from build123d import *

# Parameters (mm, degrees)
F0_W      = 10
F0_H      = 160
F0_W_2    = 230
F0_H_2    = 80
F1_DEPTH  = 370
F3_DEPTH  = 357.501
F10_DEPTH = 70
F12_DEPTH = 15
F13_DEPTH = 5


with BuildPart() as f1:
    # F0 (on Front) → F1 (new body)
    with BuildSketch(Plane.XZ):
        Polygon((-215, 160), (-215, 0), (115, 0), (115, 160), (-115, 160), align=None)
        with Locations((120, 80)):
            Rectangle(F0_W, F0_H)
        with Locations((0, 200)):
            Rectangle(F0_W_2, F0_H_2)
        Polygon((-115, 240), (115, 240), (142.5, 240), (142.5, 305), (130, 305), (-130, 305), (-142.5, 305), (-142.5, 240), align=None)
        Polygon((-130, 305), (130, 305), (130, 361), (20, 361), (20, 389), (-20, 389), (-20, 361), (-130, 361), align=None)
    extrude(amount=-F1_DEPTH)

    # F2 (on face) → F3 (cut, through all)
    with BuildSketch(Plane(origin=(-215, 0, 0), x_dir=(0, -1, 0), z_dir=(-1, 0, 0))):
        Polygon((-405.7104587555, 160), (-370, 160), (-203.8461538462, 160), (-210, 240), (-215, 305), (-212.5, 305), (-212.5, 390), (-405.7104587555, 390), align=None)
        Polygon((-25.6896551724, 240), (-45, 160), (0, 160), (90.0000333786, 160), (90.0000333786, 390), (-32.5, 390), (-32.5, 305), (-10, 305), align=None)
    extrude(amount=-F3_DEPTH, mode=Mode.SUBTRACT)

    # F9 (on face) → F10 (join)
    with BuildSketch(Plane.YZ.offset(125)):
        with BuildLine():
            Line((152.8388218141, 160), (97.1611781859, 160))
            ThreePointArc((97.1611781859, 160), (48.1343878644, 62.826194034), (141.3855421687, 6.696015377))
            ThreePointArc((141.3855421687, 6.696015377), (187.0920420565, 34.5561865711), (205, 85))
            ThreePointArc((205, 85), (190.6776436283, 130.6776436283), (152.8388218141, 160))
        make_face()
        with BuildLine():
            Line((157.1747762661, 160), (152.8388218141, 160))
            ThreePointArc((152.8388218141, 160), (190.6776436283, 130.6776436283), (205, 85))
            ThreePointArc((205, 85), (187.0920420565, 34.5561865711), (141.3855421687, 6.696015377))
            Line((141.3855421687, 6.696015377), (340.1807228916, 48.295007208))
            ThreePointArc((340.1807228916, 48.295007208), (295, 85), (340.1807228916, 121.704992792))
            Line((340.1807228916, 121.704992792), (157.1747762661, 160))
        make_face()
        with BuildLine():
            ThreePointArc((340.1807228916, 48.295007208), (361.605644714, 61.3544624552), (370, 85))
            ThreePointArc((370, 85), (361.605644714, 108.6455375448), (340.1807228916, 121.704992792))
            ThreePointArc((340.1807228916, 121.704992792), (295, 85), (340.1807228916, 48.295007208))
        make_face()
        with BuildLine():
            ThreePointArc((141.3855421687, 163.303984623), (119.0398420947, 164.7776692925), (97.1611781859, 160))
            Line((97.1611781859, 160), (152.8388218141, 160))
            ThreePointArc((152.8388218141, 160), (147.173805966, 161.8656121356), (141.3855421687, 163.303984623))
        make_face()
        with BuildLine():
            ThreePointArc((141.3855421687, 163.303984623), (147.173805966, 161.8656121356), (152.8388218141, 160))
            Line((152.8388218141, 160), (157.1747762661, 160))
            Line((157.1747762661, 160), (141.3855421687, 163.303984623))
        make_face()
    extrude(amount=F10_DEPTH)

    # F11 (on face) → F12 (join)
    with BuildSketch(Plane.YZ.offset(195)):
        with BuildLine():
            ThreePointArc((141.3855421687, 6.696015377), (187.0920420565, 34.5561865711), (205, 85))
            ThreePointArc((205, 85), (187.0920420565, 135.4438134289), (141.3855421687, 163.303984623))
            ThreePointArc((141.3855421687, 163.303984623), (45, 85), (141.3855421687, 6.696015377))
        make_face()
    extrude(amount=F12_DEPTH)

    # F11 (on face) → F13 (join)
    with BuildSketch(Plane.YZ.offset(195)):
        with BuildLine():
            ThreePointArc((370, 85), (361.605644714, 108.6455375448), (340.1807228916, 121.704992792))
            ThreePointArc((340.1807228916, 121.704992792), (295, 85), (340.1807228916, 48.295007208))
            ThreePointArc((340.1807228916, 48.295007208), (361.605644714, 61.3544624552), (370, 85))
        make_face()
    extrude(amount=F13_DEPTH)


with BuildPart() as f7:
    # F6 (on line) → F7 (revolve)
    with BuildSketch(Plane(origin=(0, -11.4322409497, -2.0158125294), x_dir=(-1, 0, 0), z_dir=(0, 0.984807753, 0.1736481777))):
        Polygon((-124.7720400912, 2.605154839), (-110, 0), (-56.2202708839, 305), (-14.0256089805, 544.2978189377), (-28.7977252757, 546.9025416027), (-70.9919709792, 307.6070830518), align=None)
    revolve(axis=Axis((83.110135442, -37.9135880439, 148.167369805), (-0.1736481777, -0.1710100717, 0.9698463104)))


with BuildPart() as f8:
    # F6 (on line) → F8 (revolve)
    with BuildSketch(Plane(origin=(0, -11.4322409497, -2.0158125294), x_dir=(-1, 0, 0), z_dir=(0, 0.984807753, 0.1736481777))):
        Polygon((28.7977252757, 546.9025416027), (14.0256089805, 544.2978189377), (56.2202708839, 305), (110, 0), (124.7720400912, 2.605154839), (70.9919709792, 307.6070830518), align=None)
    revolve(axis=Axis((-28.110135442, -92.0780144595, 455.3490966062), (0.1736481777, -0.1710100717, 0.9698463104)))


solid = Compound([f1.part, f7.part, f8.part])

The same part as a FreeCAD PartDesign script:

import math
import FreeCAD as App
import Part
import Sketcher

V = App.Vector
Q = App.Units.Quantity

doc = App.newDocument("Part")
body = doc.addObject("PartDesign::Body", "Body")

# Sketch on XZ plane
sketch1 = body.newObject("Sketcher::SketchObject", "Sketch")
sketch1.AttachmentSupport = (doc.getObject("XZ_Plane"), [""])
sketch1.MapMode = "FlatFace"
sketch1.addGeometry([
    Part.LineSegment(V(-215, 160, 0), V(-215, 0, 0)),  # 0
    Part.LineSegment(V(-215, 0, 0), V(125, 0, 0)),  # 1
    Part.LineSegment(V(125, 0, 0), V(125, 160, 0)),  # 2
    Part.LineSegment(V(125, 160, 0), V(115, 160, 0)),  # 3
    Part.LineSegment(V(115, 160, 0), V(115, 240, 0)),  # 4
    Part.LineSegment(V(115, 240, 0), V(142.5, 240, 0)),  # 5
    Part.LineSegment(V(142.5, 240, 0), V(142.5, 305, 0)),  # 6
    Part.LineSegment(V(142.5, 305, 0), V(130, 305, 0)),  # 7
    Part.LineSegment(V(130, 305, 0), V(130, 361, 0)),  # 8
    Part.LineSegment(V(130, 361, 0), V(20, 361, 0)),  # 9
    Part.LineSegment(V(20, 361, 0), V(20, 389, 0)),  # 10
    Part.LineSegment(V(20, 389, 0), V(-20, 389, 0)),  # 11
    Part.LineSegment(V(-20, 389, 0), V(-20, 361, 0)),  # 12
    Part.LineSegment(V(-20, 361, 0), V(-130, 361, 0)),  # 13
    Part.LineSegment(V(-130, 361, 0), V(-130, 305, 0)),  # 14
    Part.LineSegment(V(-130, 305, 0), V(-142.5, 305, 0)),  # 15
    Part.LineSegment(V(-142.5, 305, 0), V(-142.5, 240, 0)),  # 16
    Part.LineSegment(V(-142.5, 240, 0), V(-115, 240, 0)),  # 17
    Part.LineSegment(V(-115, 240, 0), V(-115, 160, 0)),  # 18
    Part.LineSegment(V(-115, 160, 0), V(-215, 160, 0)),  # 19
], False)
sketch1.addConstraint([
    Sketcher.Constraint("Coincident", 0, 2, 1, 1),
    Sketcher.Constraint("Coincident", 1, 2, 2, 1),
    Sketcher.Constraint("Coincident", 2, 2, 3, 1),
    Sketcher.Constraint("Coincident", 3, 2, 4, 1),
    Sketcher.Constraint("Coincident", 4, 2, 5, 1),
    Sketcher.Constraint("Coincident", 5, 2, 6, 1),
    Sketcher.Constraint("Coincident", 6, 2, 7, 1),
    Sketcher.Constraint("Coincident", 7, 2, 8, 1),
    Sketcher.Constraint("Coincident", 8, 2, 9, 1),
    Sketcher.Constraint("Coincident", 9, 2, 10, 1),
    Sketcher.Constraint("Coincident", 10, 2, 11, 1),
    Sketcher.Constraint("Coincident", 11, 2, 12, 1),
    Sketcher.Constraint("Coincident", 12, 2, 13, 1),
    Sketcher.Constraint("Coincident", 13, 2, 14, 1),
    Sketcher.Constraint("Coincident", 14, 2, 15, 1),
    Sketcher.Constraint("Coincident", 15, 2, 16, 1),
    Sketcher.Constraint("Coincident", 16, 2, 17, 1),
    Sketcher.Constraint("Coincident", 17, 2, 18, 1),
    Sketcher.Constraint("Coincident", 18, 2, 19, 1),
    Sketcher.Constraint("Coincident", 19, 2, 0, 1),
    Sketcher.Constraint("Vertical", 0),
    Sketcher.Constraint("Horizontal", 1),
    Sketcher.Constraint("Vertical", 2),
    Sketcher.Constraint("Horizontal", 3),
    Sketcher.Constraint("Vertical", 4),
    Sketcher.Constraint("Horizontal", 5),
    Sketcher.Constraint("Vertical", 6),
    Sketcher.Constraint("Horizontal", 7),
    Sketcher.Constraint("Vertical", 8),
    Sketcher.Constraint("Horizontal", 9),
    Sketcher.Constraint("Vertical", 10),
    Sketcher.Constraint("Horizontal", 11),
    Sketcher.Constraint("Vertical", 12),
    Sketcher.Constraint("Horizontal", 13),
    Sketcher.Constraint("Vertical", 14),
    Sketcher.Constraint("Horizontal", 15),
    Sketcher.Constraint("Vertical", 16),
    Sketcher.Constraint("Horizontal", 17),
    Sketcher.Constraint("Vertical", 18),
    Sketcher.Constraint("Horizontal", 19),
    Sketcher.Constraint("Symmetric", 9, 2, 12, 2, -2),
    Sketcher.Constraint("Symmetric", 7, 2, 14, 2, -2),
    Sketcher.Constraint("Symmetric", 5, 2, 16, 2, -2),
    Sketcher.Constraint("Symmetric", 3, 2, 18, 2, -2),
    Sketcher.Constraint("PointOnObject", 0, 2, -1),
    Sketcher.Constraint("DistanceX", 1, 1, 1, 2, Q("340 mm")),
    Sketcher.Constraint("DistanceX", 3, 2, 3, 1, Q("10 mm")),
    Sketcher.Constraint("DistanceX", 9, 2, 9, 1, Q("110 mm")),
    Sketcher.Constraint("DistanceX", 11, 2, 11, 1, Q("40 mm")),
    Sketcher.Constraint("DistanceX", 19, 2, 19, 1, Q("100 mm")),
    Sketcher.Constraint("DistanceY", 0, 2, 0, 1, Q("160 mm")),
    Sketcher.Constraint("DistanceY", 4, 1, 4, 2, Q("80 mm")),
    Sketcher.Constraint("DistanceY", 6, 1, 6, 2, Q("65 mm")),
    Sketcher.Constraint("DistanceY", 8, 1, 8, 2, Q("56 mm")),
    Sketcher.Constraint("DistanceY", 10, 1, 10, 2, Q("28 mm")),
    Sketcher.Constraint("DistanceX", 5, 1, 5, 2, Q("27.5 mm")),
])
pad1 = body.newObject("PartDesign::Pad", "Pad")
pad1.Profile = sketch1
pad1.Length = 370
pad1.Reversed = True

# Sketch on YZ plane
sketch2 = body.newObject("Sketcher::SketchObject", "Sketch001")
sketch2.AttachmentSupport = (doc.getObject("YZ_Plane"), [""])
sketch2.MapMode = "FlatFace"
sketch2.AttachmentOffset = App.Placement(V(0, 0, -215), App.Rotation())
sketch2.addGeometry([
    Part.LineSegment(V(405.710459, 160, 0), V(203.846154, 160, 0)),  # 0
    Part.LineSegment(V(203.846154, 160, 0), V(215, 305, 0)),  # 1
    Part.LineSegment(V(215, 305, 0), V(212.5, 305, 0)),  # 2
    Part.LineSegment(V(212.5, 305, 0), V(212.5, 390, 0)),  # 3
    Part.LineSegment(V(212.5, 390, 0), V(405.710459, 390, 0)),  # 4
    Part.LineSegment(V(405.710459, 390, 0), V(405.710459, 160, 0)),  # 5
    Part.LineSegment(V(45, 160, 0), V(-90.000033, 160, 0)),  # 6
    Part.LineSegment(V(-90.000033, 160, 0), V(-90.000033, 390, 0)),  # 7
    Part.LineSegment(V(-90.000033, 390, 0), V(32.5, 390, 0)),  # 8
    Part.LineSegment(V(32.5, 390, 0), V(32.5, 305, 0)),  # 9
    Part.LineSegment(V(32.5, 305, 0), V(10, 305, 0)),  # 10
    Part.LineSegment(V(10, 305, 0), V(45, 160, 0)),  # 11
], False)
sketch2.addConstraint([
    Sketcher.Constraint("Coincident", 0, 2, 1, 1),
    Sketcher.Constraint("Coincident", 1, 2, 2, 1),
    Sketcher.Constraint("Coincident", 2, 2, 3, 1),
    Sketcher.Constraint("Coincident", 3, 2, 4, 1),
    Sketcher.Constraint("Coincident", 4, 2, 5, 1),
    Sketcher.Constraint("Coincident", 5, 2, 0, 1),
    Sketcher.Constraint("Coincident", 6, 2, 7, 1),
    Sketcher.Constraint("Coincident", 7, 2, 8, 1),
    Sketcher.Constraint("Coincident", 8, 2, 9, 1),
    Sketcher.Constraint("Coincident", 9, 2, 10, 1),
    Sketcher.Constraint("Coincident", 10, 2, 11, 1),
    Sketcher.Constraint("Coincident", 11, 2, 6, 1),
    Sketcher.Constraint("Horizontal", 0),
    Sketcher.Constraint("Horizontal", 2),
    Sketcher.Constraint("Vertical", 3),
    Sketcher.Constraint("Horizontal", 4),
    Sketcher.Constraint("Vertical", 5),
    Sketcher.Constraint("Horizontal", 6),
    Sketcher.Constraint("Vertical", 7),
    Sketcher.Constraint("Horizontal", 8),
    Sketcher.Constraint("Vertical", 9),
    Sketcher.Constraint("Horizontal", 10),
    Sketcher.Constraint("Horizontal", 5, 2, 6, 2),
    Sketcher.Constraint("Horizontal", 4, 2, 7, 2),
    Sketcher.Constraint("Horizontal", 2, 2, 9, 2),
    Sketcher.Constraint("DistanceY", 3, 1, 3, 2, Q("85 mm")),
    Sketcher.Constraint("DistanceY", 5, 2, 5, 1, Q("230 mm")),
    Sketcher.Constraint("DistanceX", 2, 2, 2, 1, Q("2.5 mm")),
    Sketcher.Constraint("DistanceX", 10, 2, 10, 1, Q("22.5 mm")),
    Sketcher.Constraint("DistanceY", -1, 1, 0, 2, Q("160 mm")),
    Sketcher.Constraint("DistanceX", -1, 1, 1, 2, Q("215 mm")),
    Sketcher.Constraint("DistanceX", -1, 1, 10, 2, Q("10 mm")),
    Sketcher.Constraint("DistanceX", -1, 1, 11, 2, Q("45 mm")),
    Sketcher.Constraint("DistanceX", 4, 1, 4, 2, Q("193.210459 mm")),
    Sketcher.Constraint("Distance", 1, Q("145.428361 mm")),
    Sketcher.Constraint("DistanceX", 6, 2, 6, 1, Q("135.000033 mm")),
])
pocket1 = body.newObject("PartDesign::Pocket", "Pocket")
pocket1.Profile = sketch2
pocket1.Type = "ThroughAll"
pocket1.Reversed = True

# Sketch on YZ plane
sketch3 = body.newObject("Sketcher::SketchObject", "Sketch002")
sketch3.AttachmentSupport = (doc.getObject("YZ_Plane"), [""])
sketch3.MapMode = "FlatFace"
sketch3.AttachmentOffset = App.Placement(V(0, 0, 125), App.Rotation())
sketch3.addGeometry([
    Part.LineSegment(V(141.385542, 6.696015, 0), V(340.180723, 48.295007, 0)),  # 0
    Part.ArcOfCircle(Part.Circle(V(332.5, 85, 0), V(0, 0, 1), 37.5), math.radians(-78.18108), math.radians(0)),  # 1
    Part.ArcOfCircle(Part.Circle(V(332.5, 85, 0), V(0, 0, 1), 37.5), math.radians(0), math.radians(78.18108)),  # 2
    Part.LineSegment(V(340.180723, 121.704993, 0), V(141.385542, 163.303985, 0)),  # 3
    Part.ArcOfCircle(Part.Circle(V(125, 85, 0), V(0, 0, 1), 80), math.radians(78.18108), math.radians(281.81892)),  # 4
], False)
sketch3.addConstraint([
    Sketcher.Constraint("Tangent", 0, 2, 1, 1),
    Sketcher.Constraint("Tangent", 1, 2, 2, 1),
    Sketcher.Constraint("Tangent", 2, 2, 3, 1),
    Sketcher.Constraint("Tangent", 3, 2, 4, 1),
    Sketcher.Constraint("Tangent", 4, 2, 0, 1),
    Sketcher.Constraint("Equal", 1, 2),
    Sketcher.Constraint("Horizontal", 2, 3, 4, 3),
    Sketcher.Constraint("Horizontal", 4, 3, 1, 2),
    Sketcher.Constraint("Radius", 4, Q("80 mm")),
    Sketcher.Constraint("Radius", 1, Q("37.5 mm")),
    Sketcher.Constraint("DistanceY", -1, 1, 1, 3, Q("85 mm")),
    Sketcher.Constraint("DistanceX", -1, 1, 4, 3, Q("125 mm")),
    Sketcher.Constraint("DistanceX", -1, 1, 1, 2, Q("370 mm")),
])
pad2 = body.newObject("PartDesign::Pad", "Pad001")
pad2.Profile = sketch3
pad2.Length = 70

# Sketch on YZ plane
sketch4 = body.newObject("Sketcher::SketchObject", "Sketch003")
sketch4.AttachmentSupport = (doc.getObject("YZ_Plane"), [""])
sketch4.MapMode = "FlatFace"
sketch4.AttachmentOffset = App.Placement(V(0, 0, 195), App.Rotation())
sketch4.addGeometry([
    Part.ArcOfCircle(Part.Circle(V(125, 85, 0), V(0, 0, 1), 80), math.radians(-78.18108), math.radians(0)),
    Part.ArcOfCircle(Part.Circle(V(125, 85, 0), V(0, 0, 1), 80), math.radians(0), math.radians(78.18108)),
    Part.ArcOfCircle(Part.Circle(V(125, 85, 0), V(0, 0, 1), 80), math.radians(78.18108), math.radians(281.81892)),
], False)
sketch4.addConstraint([
    Sketcher.Constraint("Tangent", 0, 2, 1, 1),
    Sketcher.Constraint("Tangent", 1, 2, 2, 1),
    Sketcher.Constraint("Tangent", 2, 2, 0, 1),
    Sketcher.Constraint("Horizontal", 2, 3, 0, 2),
    Sketcher.Constraint("Vertical", 1, 2, 2, 2),
    Sketcher.Constraint("Radius", 0, Q("80 mm")),
    Sketcher.Constraint("DistanceX", -1, 1, 0, 3, Q("125 mm")),
    Sketcher.Constraint("DistanceY", -1, 1, 0, 3, Q("85 mm")),
    Sketcher.Constraint("DistanceY", 2, 2, 1, 2, Q("156.607969 mm")),
])
pad3 = body.newObject("PartDesign::Pad", "Pad002")
pad3.Profile = sketch4
pad3.Length = 15

# Sketch on YZ plane
sketch5 = body.newObject("Sketcher::SketchObject", "Sketch004")
sketch5.AttachmentSupport = (doc.getObject("YZ_Plane"), [""])
sketch5.MapMode = "FlatFace"
sketch5.AttachmentOffset = App.Placement(V(0, 0, 195), App.Rotation())
sketch5.addGeometry([
    Part.ArcOfCircle(Part.Circle(V(332.5, 85, 0), V(0, 0, 1), 37.5), math.radians(0), math.radians(78.18108)),
    Part.ArcOfCircle(Part.Circle(V(332.5, 85, 0), V(0, 0, 1), 37.5), math.radians(78.18108), math.radians(281.81892)),
    Part.ArcOfCircle(Part.Circle(V(332.5, 85, 0), V(0, 0, 1), 37.5), math.radians(-78.18108), math.radians(0)),
], False)
sketch5.addConstraint([
    Sketcher.Constraint("Tangent", 0, 2, 1, 1),
    Sketcher.Constraint("Tangent", 1, 2, 2, 1),
    Sketcher.Constraint("Tangent", 2, 2, 0, 1),
    Sketcher.Constraint("Horizontal", 1, 3, 2, 2),
    Sketcher.Constraint("Vertical", 0, 2, 1, 2),
    Sketcher.Constraint("Radius", 0, Q("37.5 mm")),
    Sketcher.Constraint("DistanceY", -1, 1, 0, 3, Q("85 mm")),
    Sketcher.Constraint("DistanceX", -1, 1, 2, 2, Q("370 mm")),
    Sketcher.Constraint("DistanceX", -1, 1, 0, 2, Q("340.180723 mm")),
])
pad4 = body.newObject("PartDesign::Pad", "Pad003")
pad4.Profile = sketch5
pad4.Length = 5
body2 = doc.addObject("PartDesign::Body", "Body001")

# Sketch on an angled plane
sketch6 = body2.newObject("Sketcher::SketchObject", "Sketch005")
sketch6.Placement = App.Placement(V(0, -11.432241, -2.015813), App.Rotation(V(-1, 0, 0), V(0, -0.173648178, 0.984807753), V(0, 0.984807753, 0.173648178), "ZXY"))
sketch6.addGeometry([
    Part.LineSegment(V(-124.77204, 2.605155, 0), V(-110, 0, 0)),
    Part.LineSegment(V(-110, 0, 0), V(-14.025609, 544.297819, 0)),
    Part.LineSegment(V(-14.025609, 544.297819, 0), V(-28.797725, 546.902542, 0)),
    Part.LineSegment(V(-28.797725, 546.902542, 0), V(-124.77204, 2.605155, 0)),
], False)
sketch6.addGeometry(Part.LineSegment(V(-110, 0, 0), V(-14.025609, 544.297819, 0)), True)  # axis
sketch6.addConstraint([
    Sketcher.Constraint("Coincident", 0, 2, 1, 1),
    Sketcher.Constraint("Coincident", 1, 2, 2, 1),
    Sketcher.Constraint("Coincident", 2, 2, 3, 1),
    Sketcher.Constraint("Coincident", 3, 2, 0, 1),
    Sketcher.Constraint("Coincident", 4, 1, 0, 2),
    Sketcher.Constraint("Coincident", 4, 2, 1, 2),
    Sketcher.Constraint("PointOnObject", 0, 2, -1),
    Sketcher.Constraint("Perpendicular", 1, 2),
    Sketcher.Constraint("Perpendicular", 2, 3),
    Sketcher.Constraint("Angle", 1, Q("80 deg")),
    Sketcher.Constraint("Distance", 0, Q("15 mm")),
    Sketcher.Constraint("DistanceX", 0, 2, -1, 1, Q("110 mm")),
    Sketcher.Constraint("Distance", 1, Q("552.69449 mm")),
    Sketcher.Constraint("Distance", 3, Q("552.694051 mm")),
])
revolution = body2.newObject("PartDesign::Revolution", "Revolution")
revolution.Profile = sketch6
revolution.ReferenceAxis = (sketch6, ["Axis0"])
revolution.Angle = 360
body3 = doc.addObject("PartDesign::Body", "Body002")

# Sketch on an angled plane
sketch7 = body3.newObject("Sketcher::SketchObject", "Sketch006")
sketch7.Placement = App.Placement(V(0, -11.432241, -2.015813), App.Rotation(V(-1, 0, 0), V(0, -0.173648178, 0.984807753), V(0, 0.984807753, 0.173648178), "ZXY"))
sketch7.addGeometry([
    Part.LineSegment(V(28.797725, 546.902542, 0), V(14.025609, 544.297819, 0)),
    Part.LineSegment(V(14.025609, 544.297819, 0), V(110, 0, 0)),
    Part.LineSegment(V(110, 0, 0), V(124.77204, 2.605155, 0)),
    Part.LineSegment(V(124.77204, 2.605155, 0), V(28.797725, 546.902542, 0)),
], False)
sketch7.addGeometry(Part.LineSegment(V(110, 0, 0), V(14.025609, 544.297819, 0)), True)  # axis
sketch7.addConstraint([
    Sketcher.Constraint("Coincident", 0, 2, 1, 1),
    Sketcher.Constraint("Coincident", 1, 2, 2, 1),
    Sketcher.Constraint("Coincident", 2, 2, 3, 1),
    Sketcher.Constraint("Coincident", 3, 2, 0, 1),
    Sketcher.Constraint("Coincident", 4, 1, 1, 2),
    Sketcher.Constraint("Coincident", 4, 2, 0, 2),
    Sketcher.Constraint("PointOnObject", 1, 2, -1),
    Sketcher.Constraint("Perpendicular", 0, 1),
    Sketcher.Constraint("Parallel", 1, 3),
    Sketcher.Constraint("Angle", 0, Q("-170 deg")),
    Sketcher.Constraint("Distance", 0, Q("15 mm")),
    Sketcher.Constraint("DistanceX", -1, 1, 1, 2, Q("110 mm")),
    Sketcher.Constraint("Distance", 1, Q("552.69449 mm")),
    Sketcher.Constraint("Distance", 3, Q("552.694051 mm")),
])
revolution2 = body3.newObject("PartDesign::Revolution", "Revolution001")
revolution2.Profile = sketch7
revolution2.ReferenceAxis = (sketch7, ["Axis0"])
revolution2.Angle = 360

doc.recompute()
